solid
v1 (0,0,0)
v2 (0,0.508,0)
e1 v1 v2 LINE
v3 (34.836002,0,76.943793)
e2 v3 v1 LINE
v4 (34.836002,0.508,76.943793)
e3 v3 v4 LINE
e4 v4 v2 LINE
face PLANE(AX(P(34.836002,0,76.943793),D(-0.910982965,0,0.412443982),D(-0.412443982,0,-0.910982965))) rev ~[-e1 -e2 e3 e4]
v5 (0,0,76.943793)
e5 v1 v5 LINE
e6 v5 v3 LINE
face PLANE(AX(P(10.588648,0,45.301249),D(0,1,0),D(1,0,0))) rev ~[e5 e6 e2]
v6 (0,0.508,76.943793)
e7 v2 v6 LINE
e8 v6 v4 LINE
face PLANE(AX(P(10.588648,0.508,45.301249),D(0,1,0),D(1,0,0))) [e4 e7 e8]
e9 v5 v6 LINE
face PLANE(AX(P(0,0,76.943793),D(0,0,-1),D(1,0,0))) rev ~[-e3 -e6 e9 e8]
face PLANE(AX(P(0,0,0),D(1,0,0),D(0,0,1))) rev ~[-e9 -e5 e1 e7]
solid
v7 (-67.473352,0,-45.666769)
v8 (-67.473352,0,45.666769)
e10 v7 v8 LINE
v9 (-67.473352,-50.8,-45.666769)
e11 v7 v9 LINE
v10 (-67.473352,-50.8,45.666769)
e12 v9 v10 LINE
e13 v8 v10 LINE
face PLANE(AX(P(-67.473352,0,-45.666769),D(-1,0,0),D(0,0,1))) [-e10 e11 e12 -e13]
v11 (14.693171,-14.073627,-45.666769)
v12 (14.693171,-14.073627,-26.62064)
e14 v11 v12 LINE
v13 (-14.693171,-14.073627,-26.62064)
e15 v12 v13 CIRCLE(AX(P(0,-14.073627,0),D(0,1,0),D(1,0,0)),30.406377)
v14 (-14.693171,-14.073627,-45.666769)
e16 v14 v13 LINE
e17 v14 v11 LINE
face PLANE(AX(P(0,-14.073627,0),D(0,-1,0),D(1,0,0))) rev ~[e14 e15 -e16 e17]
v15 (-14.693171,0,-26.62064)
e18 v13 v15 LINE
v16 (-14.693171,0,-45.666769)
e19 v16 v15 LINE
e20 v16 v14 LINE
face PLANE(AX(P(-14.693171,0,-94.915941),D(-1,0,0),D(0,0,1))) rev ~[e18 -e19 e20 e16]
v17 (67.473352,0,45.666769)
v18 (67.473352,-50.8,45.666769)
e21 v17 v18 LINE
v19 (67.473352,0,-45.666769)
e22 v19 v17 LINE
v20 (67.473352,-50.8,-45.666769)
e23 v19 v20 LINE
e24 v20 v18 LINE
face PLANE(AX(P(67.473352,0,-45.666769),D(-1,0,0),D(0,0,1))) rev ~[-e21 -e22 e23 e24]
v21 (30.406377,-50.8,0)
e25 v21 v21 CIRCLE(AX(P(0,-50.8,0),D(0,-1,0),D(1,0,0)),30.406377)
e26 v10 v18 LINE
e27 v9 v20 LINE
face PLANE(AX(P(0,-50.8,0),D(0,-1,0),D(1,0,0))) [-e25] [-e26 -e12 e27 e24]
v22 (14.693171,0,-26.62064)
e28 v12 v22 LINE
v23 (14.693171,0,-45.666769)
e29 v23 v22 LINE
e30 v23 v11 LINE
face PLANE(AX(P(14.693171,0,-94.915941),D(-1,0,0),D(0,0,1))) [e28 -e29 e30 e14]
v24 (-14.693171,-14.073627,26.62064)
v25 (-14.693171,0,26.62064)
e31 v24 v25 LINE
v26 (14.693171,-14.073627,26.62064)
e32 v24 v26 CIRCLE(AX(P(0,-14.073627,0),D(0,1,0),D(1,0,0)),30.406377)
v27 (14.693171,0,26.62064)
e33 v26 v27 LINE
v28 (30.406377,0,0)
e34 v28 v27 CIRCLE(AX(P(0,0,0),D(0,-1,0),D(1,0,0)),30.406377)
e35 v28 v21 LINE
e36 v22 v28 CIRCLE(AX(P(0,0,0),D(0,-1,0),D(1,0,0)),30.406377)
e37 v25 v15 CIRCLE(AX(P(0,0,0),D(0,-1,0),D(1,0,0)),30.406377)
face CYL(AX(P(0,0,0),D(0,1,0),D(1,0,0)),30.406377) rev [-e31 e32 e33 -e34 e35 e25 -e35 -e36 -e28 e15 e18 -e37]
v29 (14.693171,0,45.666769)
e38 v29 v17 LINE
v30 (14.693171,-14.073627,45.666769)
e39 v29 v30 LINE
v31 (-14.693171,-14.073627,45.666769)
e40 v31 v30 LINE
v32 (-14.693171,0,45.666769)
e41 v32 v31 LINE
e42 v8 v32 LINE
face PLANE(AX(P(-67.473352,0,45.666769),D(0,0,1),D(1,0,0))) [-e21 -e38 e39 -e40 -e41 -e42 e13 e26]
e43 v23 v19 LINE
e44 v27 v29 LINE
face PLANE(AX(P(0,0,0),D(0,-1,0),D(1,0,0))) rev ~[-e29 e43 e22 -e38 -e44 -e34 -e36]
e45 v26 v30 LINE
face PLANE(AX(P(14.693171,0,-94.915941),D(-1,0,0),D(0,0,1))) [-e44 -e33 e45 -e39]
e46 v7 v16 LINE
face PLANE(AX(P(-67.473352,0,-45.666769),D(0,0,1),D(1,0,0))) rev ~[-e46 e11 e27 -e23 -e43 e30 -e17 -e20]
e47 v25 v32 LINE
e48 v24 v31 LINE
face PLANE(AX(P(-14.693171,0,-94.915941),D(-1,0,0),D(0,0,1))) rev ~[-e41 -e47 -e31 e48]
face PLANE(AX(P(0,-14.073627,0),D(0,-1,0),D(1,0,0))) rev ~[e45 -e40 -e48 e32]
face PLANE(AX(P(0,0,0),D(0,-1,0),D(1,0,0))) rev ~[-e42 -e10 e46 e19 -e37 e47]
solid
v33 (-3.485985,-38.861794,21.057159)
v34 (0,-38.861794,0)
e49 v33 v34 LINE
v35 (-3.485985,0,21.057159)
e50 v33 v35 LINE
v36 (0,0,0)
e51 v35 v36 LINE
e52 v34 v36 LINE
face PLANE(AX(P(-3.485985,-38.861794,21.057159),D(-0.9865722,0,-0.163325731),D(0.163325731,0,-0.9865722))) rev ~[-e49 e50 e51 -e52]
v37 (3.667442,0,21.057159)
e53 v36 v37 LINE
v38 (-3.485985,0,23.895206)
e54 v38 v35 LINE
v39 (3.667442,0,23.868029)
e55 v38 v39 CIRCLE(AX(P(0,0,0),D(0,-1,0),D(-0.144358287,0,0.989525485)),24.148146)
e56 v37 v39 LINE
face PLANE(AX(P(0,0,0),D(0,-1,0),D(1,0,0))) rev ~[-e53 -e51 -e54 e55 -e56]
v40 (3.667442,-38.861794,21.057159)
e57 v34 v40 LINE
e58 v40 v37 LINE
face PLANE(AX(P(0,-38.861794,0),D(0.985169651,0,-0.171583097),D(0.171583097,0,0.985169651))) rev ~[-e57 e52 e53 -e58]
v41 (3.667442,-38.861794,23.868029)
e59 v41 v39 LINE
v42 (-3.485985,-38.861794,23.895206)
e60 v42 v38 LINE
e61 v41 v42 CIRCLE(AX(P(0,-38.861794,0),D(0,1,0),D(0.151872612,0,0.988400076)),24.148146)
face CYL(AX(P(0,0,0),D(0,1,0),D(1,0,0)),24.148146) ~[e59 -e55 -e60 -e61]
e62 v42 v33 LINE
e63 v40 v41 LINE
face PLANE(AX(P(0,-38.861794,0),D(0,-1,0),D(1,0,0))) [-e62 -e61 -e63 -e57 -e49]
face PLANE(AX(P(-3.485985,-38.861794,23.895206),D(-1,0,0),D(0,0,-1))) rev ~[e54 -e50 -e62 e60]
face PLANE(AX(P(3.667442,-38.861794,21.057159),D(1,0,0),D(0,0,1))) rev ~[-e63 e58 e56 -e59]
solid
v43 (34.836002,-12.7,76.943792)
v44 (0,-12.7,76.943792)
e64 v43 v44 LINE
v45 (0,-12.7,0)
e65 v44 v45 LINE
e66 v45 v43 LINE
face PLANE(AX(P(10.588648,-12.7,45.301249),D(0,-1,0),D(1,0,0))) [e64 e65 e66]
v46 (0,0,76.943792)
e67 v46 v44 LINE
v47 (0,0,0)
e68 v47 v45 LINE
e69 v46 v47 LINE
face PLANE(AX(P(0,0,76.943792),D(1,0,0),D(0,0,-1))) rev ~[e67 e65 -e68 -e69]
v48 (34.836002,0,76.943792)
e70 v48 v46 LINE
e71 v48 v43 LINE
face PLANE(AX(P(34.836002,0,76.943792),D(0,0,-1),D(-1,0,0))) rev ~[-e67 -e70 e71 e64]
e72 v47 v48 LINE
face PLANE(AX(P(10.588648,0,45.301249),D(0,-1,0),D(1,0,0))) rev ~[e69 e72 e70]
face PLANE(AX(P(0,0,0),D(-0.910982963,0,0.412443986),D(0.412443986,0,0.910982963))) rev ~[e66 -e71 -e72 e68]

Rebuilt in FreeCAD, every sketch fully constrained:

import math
import FreeCAD as App
import Part
import Sketcher
from FreeCAD import Vector
Q = App.Units.Quantity


def add_polygon(sketch, points):
    """Adds a closed chain of lines whose ends are joined by coincident constraints."""
    first, n = sketch.GeometryCount, len(points)
    for a, b in zip(points, points[1:] + points[:1]):
        sketch.addGeometry(Part.LineSegment(App.Vector(*a, 0), App.Vector(*b, 0)), False)
    for i in range(n):
        sketch.addConstraint(Sketcher.Constraint("Coincident", first + i, 2, first + (i + 1) % n, 1))

doc = App.newDocument("Part")
params = doc.addObject("Spreadsheet::Sheet", "Params")
for row, (alias, value) in enumerate([
    ("pad1_length", "2 in"),
    ("pocket1_length", "14.073627 mm"),
    ("pad2_length", "38.861794 mm"),
    ("pocket2_length", "47.989102 mm"),
    ("pad3_length", "0.5 in"),
    ("pad4_length", "0.02 in"),
], start=1):
    params.set(f"A{row}", alias)
    params.set(f"B{row}", "=" + value)
    params.setAlias(f"B{row}", alias)

body = doc.addObject("PartDesign::Body", "Body")

# Sketch on XZ plane
sketch1 = body.newObject("Sketcher::SketchObject", "Sketch")
sketch1.AttachmentSupport = (doc.getObject("XZ_Plane"), [""])
sketch1.MapMode = "FlatFace"
add_polygon(sketch1, [(-67.473352, 45.666769), (-67.473352, -45.666769), (67.473352, -45.666769), (67.473352, 45.666769)])  # lines 0-3
sketch1.addGeometry(Part.Circle(Vector(0, 0, 0), Vector(0, 0, 1), 30.406377), False)  # 4
sketch1.addConstraint([
    Sketcher.Constraint("Vertical", 0),
    Sketcher.Constraint("Horizontal", 1),
    Sketcher.Constraint("Vertical", 2),
    Sketcher.Constraint("Horizontal", 3),
    Sketcher.Constraint("Coincident", 4, 3, -1, 1),
    Sketcher.Constraint("Symmetric", 0, 2, 2, 2, -1, 1),
    Sketcher.Constraint("Diameter", 4, Q("60.812754 mm")),
    Sketcher.Constraint("DistanceY", 0, 2, 0, 1, Q("91.333538 mm")),
    Sketcher.Constraint("DistanceX", 1, 1, 1, 2, Q("134.946704 mm")),
])
pad1 = body.newObject("PartDesign::Pad", "Pad")
pad1.Profile = sketch1
pad1.setExpression("Length", "Params.pad1_length")

# Sketch on XZ plane
sketch2 = body.newObject("Sketcher::SketchObject", "Sketch001")
sketch2.AttachmentSupport = (doc.getObject("XZ_Plane"), [""])
sketch2.MapMode = "FlatFace"
add_polygon(sketch2, [(-14.693171, 94.915941), (-14.693171, -94.915941), (14.693171, -94.915941), (14.693171, 94.915941)])  # lines 0-3
sketch2.addConstraint([
    Sketcher.Constraint("Vertical", 0),
    Sketcher.Constraint("Horizontal", 1),
    Sketcher.Constraint("Vertical", 2),
    Sketcher.Constraint("Horizontal", 3),
    Sketcher.Constraint("Symmetric", 0, 2, 2, 2, -1, 1),
    Sketcher.Constraint("DistanceX", 1, 1, 1, 2, Q("29.386342 mm")),
    Sketcher.Constraint("DistanceY", 0, 2, 0, 1, Q("189.831882 mm")),
])
pocket1 = body.newObject("PartDesign::Pocket", "Pocket")
pocket1.Profile = sketch2
pocket1.setExpression("Length", "Params.pocket1_length")
pocket1.Reversed = True
body2 = doc.addObject("PartDesign::Body", "Body001")

# Sketch on XZ plane
sketch3 = body2.newObject("Sketcher::SketchObject", "Sketch002")
sketch3.AttachmentSupport = (doc.getObject("XZ_Plane001"), [""])
sketch3.MapMode = "FlatFace"
sketch3.addGeometry(Part.Circle(Vector(0, 0, 0), Vector(0, 0, 1), 24.148146), False)
sketch3.addConstraint([
    Sketcher.Constraint("Coincident", 0, 3, -1, 1),
    Sketcher.Constraint("Diameter", 0, Q("48.296292 mm")),
])
pad2 = body2.newObject("PartDesign::Pad", "Pad001")
pad2.Profile = sketch3
pad2.setExpression("Length", "Params.pad2_length")

# Sketch on XZ plane
sketch4 = body2.newObject("Sketcher::SketchObject", "Sketch003")
sketch4.AttachmentSupport = (doc.getObject("XZ_Plane001"), [""])
sketch4.MapMode = "FlatFace"
sketch4.AttachmentOffset = App.Placement(Vector(0, 0, 38.861794), App.Rotation())
sketch4.addGeometry([
    Part.ArcOfCircle(Part.Circle(Vector(-0.000001, 0, 0), Vector(0, 0, 1), 24.148146), math.radians(89.999998), math.radians(98.300119)),  # 0
    Part.LineSegment(Vector(-3.485985, 23.895206, 0), Vector(-3.485985, 21.057159, 0)),  # 1
    Part.LineSegment(Vector(-3.485985, 21.057159, 0), Vector(0, 0, 0)),  # 2
    Part.LineSegment(Vector(0, 0, 0), Vector(3.667442, 21.057159, 0)),  # 3
    Part.LineSegment(Vector(3.667442, 21.057159, 0), Vector(3.667442, 23.86803, 0)),  # 4
    Part.ArcOfCircle(Part.Circle(Vector(-0.000004, -0.000112, 0), Vector(0, 0, 1), 24.148258), math.radians(81.264568), math.radians(89.99999)),  # 5
], False)
sketch4.addConstraint([
    Sketcher.Constraint("Coincident", 0, 2, 1, 1),
    Sketcher.Constraint("Coincident", 1, 2, 2, 1),
    Sketcher.Constraint("Coincident", 2, 2, 3, 1),
    Sketcher.Constraint("Coincident", 3, 2, 4, 1),
    Sketcher.Constraint("Coincident", 4, 2, 5, 1),
    Sketcher.Constraint("Tangent", 5, 2, 0, 1),
    Sketcher.Constraint("Vertical", 1),
    Sketcher.Constraint("Vertical", 4),
    Sketcher.Constraint("Coincident", 0, 3, -1, 1),
    Sketcher.Constraint("Coincident", 2, 2, -1, 1),
    Sketcher.Constraint("PointOnObject", 5, 2, -2),
    Sketcher.Constraint("Horizontal", 1, 2, 3, 2),
    Sketcher.Constraint("Angle", 2, Q("-80.600013 deg")),
    Sketcher.Constraint("Radius", 0, Q("24.148146 mm")),
    Sketcher.Constraint("Radius", 5, Q("24.148258 mm")),
    Sketcher.Constraint("DistanceY", 4, 1, 4, 2, Q("2.810871 mm")),
    Sketcher.Constraint("Distance", 2, Q("21.343759 mm")),
])
pocket2 = body2.newObject("PartDesign::Pocket", "Pocket001")
pocket2.Profile = sketch4
pocket2.setExpression("Length", "Params.pocket2_length")
body3 = doc.addObject("PartDesign::Body", "Body002")

# Sketch on XZ plane
sketch5 = body3.newObject("Sketcher::SketchObject", "Sketch004")
sketch5.AttachmentSupport = (doc.getObject("XZ_Plane002"), [""])
sketch5.MapMode = "FlatFace"
add_polygon(sketch5, [(34.836002, 76.943792), (0, 76.943792), (0, 0)])  # lines 0-2
sketch5.addConstraint([
    Sketcher.Constraint("Horizontal", 0),
    Sketcher.Constraint("Vertical", 1),
    Sketcher.Constraint("Coincident", 1, 2, -1, 1),
    Sketcher.Constraint("DistanceY", 1, 2, 1, 1, Q("76.943792 mm")),
    Sketcher.Constraint("DistanceX", 0, 2, 0, 1, Q("34.836002 mm")),
])
pad3 = body3.newObject("PartDesign::Pad", "Pad002")
pad3.Profile = sketch5
pad3.setExpression("Length", "Params.pad3_length")
body4 = doc.addObject("PartDesign::Body", "Body003")

# Sketch on XZ plane
sketch6 = body4.newObject("Sketcher::SketchObject", "Sketch005")
sketch6.AttachmentSupport = (doc.getObject("XZ_Plane003"), [""])
sketch6.MapMode = "FlatFace"
add_polygon(sketch6, [(0, 76.943793), (34.836002, 76.943793), (0, 0)])  # lines 0-2
sketch6.addConstraint([
    Sketcher.Constraint("Horizontal", 0),
    Sketcher.Constraint("Vertical", 2),
    Sketcher.Constraint("Coincident", 1, 2, -1, 1),
    Sketcher.Constraint("DistanceX", 0, 1, 0, 2, Q("34.836002 mm")),
    Sketcher.Constraint("DistanceY", 2, 1, 2, 2, Q("76.943793 mm")),
])
pad4 = body4.newObject("PartDesign::Pad", "Pad003")
pad4.Profile = sketch6
pad4.setExpression("Length", "Params.pad4_length")
pad4.Reversed = True

doc.recompute()
